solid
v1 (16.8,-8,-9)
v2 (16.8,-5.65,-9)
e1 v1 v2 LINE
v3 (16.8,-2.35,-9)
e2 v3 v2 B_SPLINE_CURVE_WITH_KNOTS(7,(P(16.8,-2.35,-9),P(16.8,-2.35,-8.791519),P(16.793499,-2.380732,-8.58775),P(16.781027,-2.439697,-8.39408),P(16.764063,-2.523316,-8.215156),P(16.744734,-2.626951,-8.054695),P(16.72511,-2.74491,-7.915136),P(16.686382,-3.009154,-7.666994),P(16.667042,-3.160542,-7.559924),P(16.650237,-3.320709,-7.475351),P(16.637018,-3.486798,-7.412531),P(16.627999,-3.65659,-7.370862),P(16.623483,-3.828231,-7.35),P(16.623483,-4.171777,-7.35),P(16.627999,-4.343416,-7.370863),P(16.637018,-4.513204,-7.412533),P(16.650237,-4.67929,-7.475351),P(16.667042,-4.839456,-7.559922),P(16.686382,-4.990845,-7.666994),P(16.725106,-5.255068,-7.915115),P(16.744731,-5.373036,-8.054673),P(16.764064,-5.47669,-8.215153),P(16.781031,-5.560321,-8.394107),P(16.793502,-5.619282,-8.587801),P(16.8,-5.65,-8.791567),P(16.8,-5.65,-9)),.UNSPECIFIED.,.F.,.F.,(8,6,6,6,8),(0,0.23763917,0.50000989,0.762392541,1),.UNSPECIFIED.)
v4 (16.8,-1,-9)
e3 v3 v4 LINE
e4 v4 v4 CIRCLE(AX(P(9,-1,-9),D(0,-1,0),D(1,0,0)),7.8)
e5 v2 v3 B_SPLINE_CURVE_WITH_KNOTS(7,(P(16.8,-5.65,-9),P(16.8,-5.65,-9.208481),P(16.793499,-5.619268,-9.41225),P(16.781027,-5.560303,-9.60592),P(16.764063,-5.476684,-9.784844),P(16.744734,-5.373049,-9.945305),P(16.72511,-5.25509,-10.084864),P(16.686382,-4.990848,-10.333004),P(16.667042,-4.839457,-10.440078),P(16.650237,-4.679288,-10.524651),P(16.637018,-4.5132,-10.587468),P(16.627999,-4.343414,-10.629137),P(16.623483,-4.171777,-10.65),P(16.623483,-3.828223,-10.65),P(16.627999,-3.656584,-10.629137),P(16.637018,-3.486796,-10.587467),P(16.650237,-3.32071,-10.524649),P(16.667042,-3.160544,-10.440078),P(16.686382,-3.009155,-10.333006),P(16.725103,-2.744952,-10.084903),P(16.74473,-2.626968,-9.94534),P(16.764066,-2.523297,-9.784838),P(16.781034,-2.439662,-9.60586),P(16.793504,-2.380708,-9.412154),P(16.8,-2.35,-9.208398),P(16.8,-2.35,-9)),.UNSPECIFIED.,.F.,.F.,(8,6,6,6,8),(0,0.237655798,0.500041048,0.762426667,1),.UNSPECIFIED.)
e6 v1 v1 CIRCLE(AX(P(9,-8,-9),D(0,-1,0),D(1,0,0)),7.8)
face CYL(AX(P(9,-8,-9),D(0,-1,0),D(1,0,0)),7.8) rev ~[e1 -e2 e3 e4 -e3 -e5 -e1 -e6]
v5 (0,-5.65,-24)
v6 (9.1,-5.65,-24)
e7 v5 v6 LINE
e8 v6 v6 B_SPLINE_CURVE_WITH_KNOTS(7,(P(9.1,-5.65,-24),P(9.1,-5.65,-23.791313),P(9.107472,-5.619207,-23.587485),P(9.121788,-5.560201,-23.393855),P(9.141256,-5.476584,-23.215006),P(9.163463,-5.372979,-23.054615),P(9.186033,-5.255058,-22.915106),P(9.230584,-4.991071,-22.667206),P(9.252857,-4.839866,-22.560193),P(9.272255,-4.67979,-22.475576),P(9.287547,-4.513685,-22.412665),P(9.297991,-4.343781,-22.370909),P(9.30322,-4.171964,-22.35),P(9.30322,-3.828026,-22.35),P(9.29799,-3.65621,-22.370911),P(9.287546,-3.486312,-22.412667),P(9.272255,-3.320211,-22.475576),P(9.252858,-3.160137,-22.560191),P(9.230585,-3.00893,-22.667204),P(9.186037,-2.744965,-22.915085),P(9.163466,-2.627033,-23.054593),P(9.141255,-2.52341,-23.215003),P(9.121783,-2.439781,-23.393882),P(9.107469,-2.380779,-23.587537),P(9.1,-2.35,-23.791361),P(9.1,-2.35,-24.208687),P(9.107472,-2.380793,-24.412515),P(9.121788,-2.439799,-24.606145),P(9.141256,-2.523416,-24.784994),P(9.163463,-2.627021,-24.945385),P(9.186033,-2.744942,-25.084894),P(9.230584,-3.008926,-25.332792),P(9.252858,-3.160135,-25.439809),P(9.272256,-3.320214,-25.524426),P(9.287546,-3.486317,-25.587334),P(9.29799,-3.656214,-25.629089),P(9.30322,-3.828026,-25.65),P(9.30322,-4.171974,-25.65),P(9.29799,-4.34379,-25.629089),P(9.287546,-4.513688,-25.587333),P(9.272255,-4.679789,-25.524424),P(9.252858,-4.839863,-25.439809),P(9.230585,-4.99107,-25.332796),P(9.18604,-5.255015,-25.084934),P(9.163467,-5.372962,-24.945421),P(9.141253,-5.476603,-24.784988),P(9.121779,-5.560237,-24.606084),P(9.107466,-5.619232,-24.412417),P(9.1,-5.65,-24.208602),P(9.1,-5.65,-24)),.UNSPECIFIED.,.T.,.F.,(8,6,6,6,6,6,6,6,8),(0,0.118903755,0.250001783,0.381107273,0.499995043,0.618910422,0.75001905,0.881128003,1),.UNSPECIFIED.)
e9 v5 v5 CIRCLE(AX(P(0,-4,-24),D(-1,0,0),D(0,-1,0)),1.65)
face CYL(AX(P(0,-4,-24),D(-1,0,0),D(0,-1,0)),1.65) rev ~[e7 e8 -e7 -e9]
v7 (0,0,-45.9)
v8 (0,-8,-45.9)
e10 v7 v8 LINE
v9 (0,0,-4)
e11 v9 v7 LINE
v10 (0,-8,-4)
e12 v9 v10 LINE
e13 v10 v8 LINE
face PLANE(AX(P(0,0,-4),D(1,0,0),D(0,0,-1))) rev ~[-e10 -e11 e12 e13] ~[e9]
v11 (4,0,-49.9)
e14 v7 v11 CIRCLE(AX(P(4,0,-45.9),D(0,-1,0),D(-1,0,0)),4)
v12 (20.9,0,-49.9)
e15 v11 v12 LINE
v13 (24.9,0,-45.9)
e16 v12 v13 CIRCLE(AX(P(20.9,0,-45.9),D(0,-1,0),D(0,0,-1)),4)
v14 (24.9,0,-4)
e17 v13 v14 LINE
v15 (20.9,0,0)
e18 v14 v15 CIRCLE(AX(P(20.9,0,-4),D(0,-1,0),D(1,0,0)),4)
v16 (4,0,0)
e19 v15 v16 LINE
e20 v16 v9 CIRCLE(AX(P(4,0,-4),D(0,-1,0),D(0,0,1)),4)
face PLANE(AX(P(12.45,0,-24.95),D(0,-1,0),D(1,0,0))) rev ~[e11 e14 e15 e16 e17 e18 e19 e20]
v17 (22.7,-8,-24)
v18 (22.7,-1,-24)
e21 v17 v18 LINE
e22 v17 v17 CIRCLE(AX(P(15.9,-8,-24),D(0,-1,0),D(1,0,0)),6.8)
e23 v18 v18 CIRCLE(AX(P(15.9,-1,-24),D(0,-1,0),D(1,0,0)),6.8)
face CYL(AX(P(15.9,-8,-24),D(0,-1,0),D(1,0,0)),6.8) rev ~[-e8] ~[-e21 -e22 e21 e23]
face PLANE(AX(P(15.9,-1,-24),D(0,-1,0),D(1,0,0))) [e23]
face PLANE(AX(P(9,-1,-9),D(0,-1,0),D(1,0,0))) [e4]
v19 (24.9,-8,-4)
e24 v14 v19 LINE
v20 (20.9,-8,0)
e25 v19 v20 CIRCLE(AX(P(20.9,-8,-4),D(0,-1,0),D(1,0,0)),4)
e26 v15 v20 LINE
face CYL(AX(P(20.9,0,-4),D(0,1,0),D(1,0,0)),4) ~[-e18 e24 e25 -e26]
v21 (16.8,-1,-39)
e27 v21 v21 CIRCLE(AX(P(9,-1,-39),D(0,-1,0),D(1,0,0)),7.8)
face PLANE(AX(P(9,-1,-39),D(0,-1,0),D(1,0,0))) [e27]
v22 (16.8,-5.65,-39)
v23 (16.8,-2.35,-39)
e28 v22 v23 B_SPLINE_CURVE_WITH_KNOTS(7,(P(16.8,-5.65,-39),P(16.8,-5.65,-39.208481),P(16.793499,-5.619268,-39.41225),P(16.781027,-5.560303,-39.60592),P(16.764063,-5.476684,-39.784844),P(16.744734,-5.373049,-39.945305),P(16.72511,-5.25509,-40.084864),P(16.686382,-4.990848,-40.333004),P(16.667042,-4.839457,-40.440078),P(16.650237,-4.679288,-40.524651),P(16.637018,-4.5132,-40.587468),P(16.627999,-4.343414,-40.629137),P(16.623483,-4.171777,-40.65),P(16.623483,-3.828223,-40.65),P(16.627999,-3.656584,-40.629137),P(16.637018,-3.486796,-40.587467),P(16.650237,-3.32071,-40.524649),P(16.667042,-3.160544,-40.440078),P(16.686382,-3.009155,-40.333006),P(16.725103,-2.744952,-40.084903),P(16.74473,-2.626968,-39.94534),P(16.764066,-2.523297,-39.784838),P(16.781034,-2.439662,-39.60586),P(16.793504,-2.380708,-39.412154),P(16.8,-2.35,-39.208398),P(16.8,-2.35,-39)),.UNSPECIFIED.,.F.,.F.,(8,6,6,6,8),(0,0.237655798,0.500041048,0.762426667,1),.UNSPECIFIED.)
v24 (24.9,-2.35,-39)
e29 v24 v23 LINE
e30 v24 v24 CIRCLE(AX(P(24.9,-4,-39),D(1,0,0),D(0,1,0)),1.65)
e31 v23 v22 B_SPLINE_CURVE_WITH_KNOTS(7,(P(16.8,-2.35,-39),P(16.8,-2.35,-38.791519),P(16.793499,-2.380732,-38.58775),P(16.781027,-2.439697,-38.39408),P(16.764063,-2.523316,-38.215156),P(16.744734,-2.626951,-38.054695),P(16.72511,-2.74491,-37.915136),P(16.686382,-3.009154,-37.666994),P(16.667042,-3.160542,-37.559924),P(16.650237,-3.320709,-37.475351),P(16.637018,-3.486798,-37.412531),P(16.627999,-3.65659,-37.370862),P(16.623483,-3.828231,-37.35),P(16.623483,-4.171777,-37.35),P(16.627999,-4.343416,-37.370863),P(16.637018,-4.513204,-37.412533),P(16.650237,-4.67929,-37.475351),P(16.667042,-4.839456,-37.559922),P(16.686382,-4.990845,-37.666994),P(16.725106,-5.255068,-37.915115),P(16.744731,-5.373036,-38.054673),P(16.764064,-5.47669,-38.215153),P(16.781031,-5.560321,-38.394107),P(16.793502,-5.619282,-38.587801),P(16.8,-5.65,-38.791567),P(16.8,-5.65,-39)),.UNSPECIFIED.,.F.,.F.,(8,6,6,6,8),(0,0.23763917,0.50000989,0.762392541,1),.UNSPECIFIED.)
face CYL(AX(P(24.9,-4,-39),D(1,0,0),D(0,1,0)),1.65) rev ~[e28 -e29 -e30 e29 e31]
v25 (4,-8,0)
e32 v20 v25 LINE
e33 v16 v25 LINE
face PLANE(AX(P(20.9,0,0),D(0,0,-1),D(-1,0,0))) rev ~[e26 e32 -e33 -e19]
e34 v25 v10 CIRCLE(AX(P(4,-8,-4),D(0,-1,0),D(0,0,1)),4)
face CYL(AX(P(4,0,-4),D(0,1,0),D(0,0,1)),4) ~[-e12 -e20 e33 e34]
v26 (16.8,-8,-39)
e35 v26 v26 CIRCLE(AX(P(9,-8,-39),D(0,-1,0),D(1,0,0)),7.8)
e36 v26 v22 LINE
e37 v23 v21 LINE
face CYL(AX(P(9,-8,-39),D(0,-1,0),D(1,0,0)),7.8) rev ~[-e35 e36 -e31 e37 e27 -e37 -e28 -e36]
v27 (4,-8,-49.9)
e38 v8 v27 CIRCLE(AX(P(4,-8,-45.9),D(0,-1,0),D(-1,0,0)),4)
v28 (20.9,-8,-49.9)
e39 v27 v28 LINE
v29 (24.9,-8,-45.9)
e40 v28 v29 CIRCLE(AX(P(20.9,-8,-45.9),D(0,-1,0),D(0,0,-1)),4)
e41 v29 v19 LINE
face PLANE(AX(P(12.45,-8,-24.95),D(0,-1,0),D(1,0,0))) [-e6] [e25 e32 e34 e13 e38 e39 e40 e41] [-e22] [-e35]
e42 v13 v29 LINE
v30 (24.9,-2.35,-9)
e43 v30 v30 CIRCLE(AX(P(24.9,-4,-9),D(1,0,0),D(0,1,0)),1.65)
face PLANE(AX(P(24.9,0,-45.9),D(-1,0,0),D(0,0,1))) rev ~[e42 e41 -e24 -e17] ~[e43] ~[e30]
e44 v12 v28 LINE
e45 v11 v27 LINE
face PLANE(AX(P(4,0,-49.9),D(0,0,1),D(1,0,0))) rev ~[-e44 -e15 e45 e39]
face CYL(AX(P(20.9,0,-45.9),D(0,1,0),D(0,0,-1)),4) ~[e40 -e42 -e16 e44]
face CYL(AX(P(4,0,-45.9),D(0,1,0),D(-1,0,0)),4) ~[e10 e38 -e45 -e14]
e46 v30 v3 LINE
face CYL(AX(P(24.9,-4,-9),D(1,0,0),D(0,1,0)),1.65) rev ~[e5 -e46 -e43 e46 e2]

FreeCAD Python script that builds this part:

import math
import FreeCAD as App
import Part
import Sketcher

doc = App.newDocument("Part")
body = doc.addObject("PartDesign::Body", "Body")

sketch1 = body.newObject("Sketcher::SketchObject", "Sketch")
sketch1.AttachmentSupport = (doc.getObject("XZ_Plane"), [""])
sketch1.MapMode = "FlatFace"
sketch1.addGeometry([
    Part.LineSegment(App.Vector(20.9, 0, 0), App.Vector(4, 0, 0)),
    Part.ArcOfCircle(Part.Circle(App.Vector(4, -4, 0), App.Vector(0, 0, 1), 4), math.radians(90), math.radians(180)),
    Part.LineSegment(App.Vector(0, -4, 0), App.Vector(0, -45.9, 0)),
    Part.ArcOfCircle(Part.Circle(App.Vector(4, -45.9, 0), App.Vector(0, 0, 1), 4), math.radians(180), math.radians(270)),
    Part.LineSegment(App.Vector(4, -49.9, 0), App.Vector(20.9, -49.9, 0)),
    Part.ArcOfCircle(Part.Circle(App.Vector(20.9, -45.9, 0), App.Vector(0, 0, 1), 4), math.radians(-90), math.radians(0)),
    Part.LineSegment(App.Vector(24.9, -45.9, 0), App.Vector(24.9, -4, 0)),
    Part.ArcOfCircle(Part.Circle(App.Vector(20.9, -4, 0), App.Vector(0, 0, 1), 4), math.radians(0), math.radians(90)),
], False)
sketch1.addConstraint([
    Sketcher.Constraint("Tangent", 0, 2, 1, 1),
    Sketcher.Constraint("Tangent", 1, 2, 2, 1),
    Sketcher.Constraint("Tangent", 2, 2, 3, 1),
    Sketcher.Constraint("Tangent", 3, 2, 4, 1),
    Sketcher.Constraint("Tangent", 4, 2, 5, 1),
    Sketcher.Constraint("Tangent", 5, 2, 6, 1),
    Sketcher.Constraint("Tangent", 6, 2, 7, 1),
    Sketcher.Constraint("Tangent", 7, 2, 0, 1),
    Sketcher.Constraint("Horizontal", 0),
    Sketcher.Constraint("Vertical", 2),
    Sketcher.Constraint("Horizontal", 4),
    Sketcher.Constraint("Vertical", 6),
    Sketcher.Constraint("Equal", 1, 3),
    Sketcher.Constraint("Equal", 3, 5),
    Sketcher.Constraint("Equal", 5, 7),
    Sketcher.Constraint("PointOnObject", 0, 2, -1),
    Sketcher.Constraint("PointOnObject", 1, 2, -2),
    Sketcher.Constraint("Radius", 1, 4.0),
    Sketcher.Constraint("DistanceX", 0, 2, 0, 1, 16.9),
    Sketcher.Constraint("DistanceY", 2, 2, 2, 1, 41.9),
])
pad1 = body.newObject("PartDesign::Pad", "Pad")
pad1.Profile = sketch1
pad1.Length = 8

sketch2 = body.newObject("Sketcher::SketchObject", "Sketch001")
sketch2.AttachmentSupport = (doc.getObject("XZ_Plane"), [""])
sketch2.MapMode = "FlatFace"
sketch2.AttachmentOffset = App.Placement(App.Vector(0, 0, 8), App.Rotation())
sketch2.addGeometry([
    Part.Circle(App.Vector(9, -9, 0), App.Vector(0, 0, 1), 8),
    Part.Circle(App.Vector(16, -24, 0), App.Vector(0, 0, 1), 7),
    Part.Circle(App.Vector(9, -39, 0), App.Vector(0, 0, 1), 8),
], False)
sketch2.addConstraint([
    Sketcher.Constraint("Equal", 0, 2),
    Sketcher.Constraint("Vertical", 0, 3, 2, 3),
    Sketcher.Constraint("Diameter", 0, 15.6),
    Sketcher.Constraint("Diameter", 1, 13.6),
    Sketcher.Constraint("DistanceX", -1, 1, 0, 3, 9.0),
    Sketcher.Constraint("DistanceY", 0, 3, -1, 1, 9.0),
    Sketcher.Constraint("DistanceY", 1, 3, -1, 1, 24.0),
    Sketcher.Constraint("DistanceY", 2, 3, -1, 1, 39.0),
    Sketcher.Constraint("DistanceX", -1, 1, 1, 3, 15.9),
])
pocket1 = body.newObject("PartDesign::Pocket", "Pocket")
pocket1.Profile = sketch2
pocket1.Length = 7

sketch3 = body.newObject("Sketcher::SketchObject", "Sketch002")
sketch3.AttachmentSupport = (doc.getObject("YZ_Plane"), [""])
sketch3.MapMode = "FlatFace"
sketch3.AttachmentOffset = App.Placement(App.Vector(0, 0, 24.9), App.Rotation())
sketch3.addGeometry([
    Part.Circle(App.Vector(-4, -39, 0), App.Vector(0, 0, 1), 1.6),
    Part.Circle(App.Vector(-4, -9, 0), App.Vector(0, 0, 1), 1.6),
], False)
sketch3.addConstraint([
    Sketcher.Constraint("Equal", 0, 1),
    Sketcher.Constraint("Vertical", 0, 3, 1, 3),
    Sketcher.Constraint("Diameter", 0, 3.3),
    Sketcher.Constraint("DistanceX", 0, 3, -1, 1, 4.0),
    Sketcher.Constraint("DistanceY", 0, 3, -1, 1, 39.0),
    Sketcher.Constraint("DistanceY", 1, 3, -1, 1, 9.0),
])
pocket2 = body.newObject("PartDesign::Pocket", "Pocket001")
pocket2.Profile = sketch3
pocket2.Length = 8.277517

sketch4 = body.newObject("Sketcher::SketchObject", "Sketch003")
sketch4.AttachmentSupport = (doc.getObject("YZ_Plane"), [""])
sketch4.MapMode = "FlatFace"
sketch4.addGeometry(Part.Circle(App.Vector(-4, -24, 0), App.Vector(0, 0, 1), 1.6), False)
sketch4.addConstraint([
    Sketcher.Constraint("Diameter", 0, 3.3),
    Sketcher.Constraint("DistanceX", 0, 3, -1, 1, 4.0),
    Sketcher.Constraint("DistanceY", 0, 3, -1, 1, 24.0),
])
pocket3 = body.newObject("PartDesign::Pocket", "Pocket002")
pocket3.Profile = sketch4
pocket3.Length = 9.304221
pocket3.Reversed = True

doc.recompute()
